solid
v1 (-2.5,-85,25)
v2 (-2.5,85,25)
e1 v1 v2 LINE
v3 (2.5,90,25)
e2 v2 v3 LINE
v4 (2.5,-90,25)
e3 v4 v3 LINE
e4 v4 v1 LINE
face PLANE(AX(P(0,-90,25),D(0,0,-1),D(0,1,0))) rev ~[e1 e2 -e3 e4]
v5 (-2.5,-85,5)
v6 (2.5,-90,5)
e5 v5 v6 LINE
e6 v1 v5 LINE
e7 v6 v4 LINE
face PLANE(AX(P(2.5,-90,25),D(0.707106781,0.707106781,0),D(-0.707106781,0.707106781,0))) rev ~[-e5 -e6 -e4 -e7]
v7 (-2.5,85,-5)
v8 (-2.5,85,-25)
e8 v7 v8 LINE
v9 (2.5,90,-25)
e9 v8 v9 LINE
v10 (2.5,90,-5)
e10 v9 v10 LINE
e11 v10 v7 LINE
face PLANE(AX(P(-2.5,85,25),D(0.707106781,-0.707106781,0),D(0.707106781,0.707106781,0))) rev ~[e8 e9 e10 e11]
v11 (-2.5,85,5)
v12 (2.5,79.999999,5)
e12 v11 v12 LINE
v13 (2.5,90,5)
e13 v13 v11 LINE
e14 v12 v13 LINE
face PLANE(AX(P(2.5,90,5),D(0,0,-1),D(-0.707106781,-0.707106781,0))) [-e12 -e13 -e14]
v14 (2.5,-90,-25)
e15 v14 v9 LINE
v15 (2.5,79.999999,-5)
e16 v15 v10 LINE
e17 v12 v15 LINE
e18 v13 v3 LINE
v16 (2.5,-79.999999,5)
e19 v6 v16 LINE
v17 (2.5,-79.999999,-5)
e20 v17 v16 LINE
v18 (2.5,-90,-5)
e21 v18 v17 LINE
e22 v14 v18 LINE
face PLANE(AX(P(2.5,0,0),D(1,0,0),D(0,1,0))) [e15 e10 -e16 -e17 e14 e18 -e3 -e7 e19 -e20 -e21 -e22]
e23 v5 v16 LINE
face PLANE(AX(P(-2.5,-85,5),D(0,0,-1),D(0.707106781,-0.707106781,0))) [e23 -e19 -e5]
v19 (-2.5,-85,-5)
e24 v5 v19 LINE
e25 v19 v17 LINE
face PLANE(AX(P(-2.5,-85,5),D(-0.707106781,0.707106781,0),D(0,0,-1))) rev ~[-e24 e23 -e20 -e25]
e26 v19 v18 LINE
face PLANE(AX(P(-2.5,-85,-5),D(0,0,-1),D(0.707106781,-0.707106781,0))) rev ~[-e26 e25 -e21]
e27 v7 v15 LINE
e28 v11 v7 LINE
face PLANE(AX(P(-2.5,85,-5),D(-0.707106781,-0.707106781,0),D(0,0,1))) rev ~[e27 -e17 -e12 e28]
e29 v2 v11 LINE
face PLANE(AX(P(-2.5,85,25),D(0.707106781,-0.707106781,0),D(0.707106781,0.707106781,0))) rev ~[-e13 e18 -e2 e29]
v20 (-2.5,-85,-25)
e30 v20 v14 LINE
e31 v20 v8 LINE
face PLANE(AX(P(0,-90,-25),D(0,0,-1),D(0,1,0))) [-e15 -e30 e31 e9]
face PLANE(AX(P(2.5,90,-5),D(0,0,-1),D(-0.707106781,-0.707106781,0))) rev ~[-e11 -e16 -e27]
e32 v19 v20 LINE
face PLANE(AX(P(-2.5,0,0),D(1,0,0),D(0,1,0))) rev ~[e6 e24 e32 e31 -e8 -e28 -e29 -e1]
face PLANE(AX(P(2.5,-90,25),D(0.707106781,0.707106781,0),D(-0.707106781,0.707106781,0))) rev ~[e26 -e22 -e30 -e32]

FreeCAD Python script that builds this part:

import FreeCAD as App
import Part
import Sketcher
from FreeCAD import Vector


def add_polygon(sketch, points):
    """Adds a closed chain of lines whose ends are joined by coincident constraints."""
    first, n = sketch.GeometryCount, len(points)
    for a, b in zip(points, points[1:] + points[:1]):
        sketch.addGeometry(Part.LineSegment(App.Vector(*a, 0), App.Vector(*b, 0)), False)
    for i in range(n):
        sketch.addConstraint(Sketcher.Constraint("Coincident", first + i, 2, first + (i + 1) % n, 1))

doc = App.newDocument("Part")
body = doc.addObject("PartDesign::Body", "Body")

# Sketch on YZ plane
sketch1 = body.newObject("Sketcher::SketchObject", "Sketch")
sketch1.AttachmentSupport = (doc.getObject("YZ_Plane"), [""])
sketch1.MapMode = "FlatFace"
add_polygon(sketch1, [(-90, 25), (-90, -25), (90, -25), (90, 25)])  # lines 0-3
sketch1.addConstraint([
    Sketcher.Constraint("Vertical", 0),
    Sketcher.Constraint("Horizontal", 1),
    Sketcher.Constraint("Vertical", 2),
    Sketcher.Constraint("Horizontal", 3),
    Sketcher.Constraint("Symmetric", 0, 2, 2, 2, -1, 1),
    Sketcher.Constraint("DistanceX", 1, 1, 1, 2, 180.0),
    Sketcher.Constraint("DistanceY", 0, 2, 0, 1, 50.0),
])
pad1 = body.newObject("PartDesign::Pad", "Pad")
pad1.Profile = sketch1
pad1.Length = 5
pad1.Midplane = True

# Sketch on XY plane
sketch2 = body.newObject("Sketcher::SketchObject", "Sketch001")
sketch2.AttachmentSupport = (doc.getObject("XY_Plane"), [""])
sketch2.MapMode = "FlatFace"
sketch2.AttachmentOffset = App.Placement(Vector(0, 0, 25), App.Rotation())
add_polygon(sketch2, [(-2, -85), (-2, -90), (2, -90)])  # lines 0-2
sketch2.addConstraint([
    Sketcher.Constraint("Vertical", 0),
    Sketcher.Constraint("Horizontal", 1),
    Sketcher.Constraint("Equal", 1, 0),
    Sketcher.Constraint("DistanceX", 1, 1, 1, 2, 5.0),
    Sketcher.Constraint("DistanceY", 0, 2, -1, 1, 90.0),
    Sketcher.Constraint("DistanceX", 0, 2, -1, 1, 2.5),
])
pocket1 = body.newObject("PartDesign::Pocket", "Pocket")
pocket1.Profile = sketch2
pocket1.Length = 60

# Sketch on XY plane
sketch3 = body.newObject("Sketcher::SketchObject", "Sketch002")
sketch3.AttachmentSupport = (doc.getObject("XY_Plane"), [""])
sketch3.MapMode = "FlatFace"
sketch3.AttachmentOffset = App.Placement(Vector(0, 0, 25), App.Rotation())
add_polygon(sketch3, [(2, 90), (-2, 90), (-2, 85)])  # lines 0-2
sketch3.addConstraint([
    Sketcher.Constraint("Horizontal", 0),
    Sketcher.Constraint("Vertical", 1),
    Sketcher.Constraint("Equal", 0, 1),
    Sketcher.Constraint("DistanceX", 0, 2, 0, 1, 5.0),
    Sketcher.Constraint("DistanceY", -1, 1, 0, 2, 90.0),
    Sketcher.Constraint("DistanceX", 0, 2, -1, 1, 2.5),
])
pocket2 = body.newObject("PartDesign::Pocket", "Pocket001")
pocket2.Profile = sketch3
pocket2.Length = 50

# Sketch on an angled plane
sketch4 = body.newObject("Sketcher::SketchObject", "Sketch003")
sketch4.Placement = App.Placement(Vector(-43.75, -43.75, 0), App.Rotation(Vector(0.707106781, -0.707106781, 0), Vector(0, 0, 0.999999999), Vector(-0.707106781, -0.707106781, 0), "ZXY"))
add_polygon(sketch4, [(58, -5), (65, -5), (65, 5), (58, 5)])  # lines 0-3
sketch4.addConstraint([
    Sketcher.Constraint("Horizontal", 0),
    Sketcher.Constraint("Vertical", 1),
    Sketcher.Constraint("Horizontal", 2),
    Sketcher.Constraint("Vertical", 3),
    Sketcher.Constraint("DistanceY", 1, 1, 1, 2, 10.0),
    Sketcher.Constraint("DistanceY", 0, 2, -1, 1, 5.0),
    Sketcher.Constraint("DistanceX", 0, 1, 0, 2, 7.071068),
    Sketcher.Constraint("DistanceX", -1, 1, 2, 2, 58.336309),
])
pocket3 = body.newObject("PartDesign::Pocket", "Pocket002")
pocket3.Profile = sketch4
pocket3.Length = 25

# Sketch on an angled plane
sketch5 = body.newObject("Sketcher::SketchObject", "Sketch004")
sketch5.Placement = App.Placement(Vector(-43.75, 43.75, 0), App.Rotation(Vector(-0.707106781, -0.707106781, 0), Vector(0, 0, 0.999999999), Vector(-0.707106781, 0.707106781, 0), "ZXY"))
add_polygon(sketch5, [(-65, -5), (-58, -5), (-58, 5), (-65, 5)])  # lines 0-3
sketch5.addConstraint([
    Sketcher.Constraint("Horizontal", 0),
    Sketcher.Constraint("Vertical", 1),
    Sketcher.Constraint("Horizontal", 2),
    Sketcher.Constraint("Vertical", 3),
    Sketcher.Constraint("DistanceY", 1, 1, 1, 2, 10.0),
    Sketcher.Constraint("DistanceY", 0, 2, -1, 1, 5.0),
    Sketcher.Constraint("DistanceX", 0, 1, 0, 2, 7.071068),
    Sketcher.Constraint("DistanceX", 0, 2, -1, 1, 58.336309),
])
pocket4 = body.newObject("PartDesign::Pocket", "Pocket003")
pocket4.Profile = sketch5
pocket4.Length = 25

doc.recompute()
